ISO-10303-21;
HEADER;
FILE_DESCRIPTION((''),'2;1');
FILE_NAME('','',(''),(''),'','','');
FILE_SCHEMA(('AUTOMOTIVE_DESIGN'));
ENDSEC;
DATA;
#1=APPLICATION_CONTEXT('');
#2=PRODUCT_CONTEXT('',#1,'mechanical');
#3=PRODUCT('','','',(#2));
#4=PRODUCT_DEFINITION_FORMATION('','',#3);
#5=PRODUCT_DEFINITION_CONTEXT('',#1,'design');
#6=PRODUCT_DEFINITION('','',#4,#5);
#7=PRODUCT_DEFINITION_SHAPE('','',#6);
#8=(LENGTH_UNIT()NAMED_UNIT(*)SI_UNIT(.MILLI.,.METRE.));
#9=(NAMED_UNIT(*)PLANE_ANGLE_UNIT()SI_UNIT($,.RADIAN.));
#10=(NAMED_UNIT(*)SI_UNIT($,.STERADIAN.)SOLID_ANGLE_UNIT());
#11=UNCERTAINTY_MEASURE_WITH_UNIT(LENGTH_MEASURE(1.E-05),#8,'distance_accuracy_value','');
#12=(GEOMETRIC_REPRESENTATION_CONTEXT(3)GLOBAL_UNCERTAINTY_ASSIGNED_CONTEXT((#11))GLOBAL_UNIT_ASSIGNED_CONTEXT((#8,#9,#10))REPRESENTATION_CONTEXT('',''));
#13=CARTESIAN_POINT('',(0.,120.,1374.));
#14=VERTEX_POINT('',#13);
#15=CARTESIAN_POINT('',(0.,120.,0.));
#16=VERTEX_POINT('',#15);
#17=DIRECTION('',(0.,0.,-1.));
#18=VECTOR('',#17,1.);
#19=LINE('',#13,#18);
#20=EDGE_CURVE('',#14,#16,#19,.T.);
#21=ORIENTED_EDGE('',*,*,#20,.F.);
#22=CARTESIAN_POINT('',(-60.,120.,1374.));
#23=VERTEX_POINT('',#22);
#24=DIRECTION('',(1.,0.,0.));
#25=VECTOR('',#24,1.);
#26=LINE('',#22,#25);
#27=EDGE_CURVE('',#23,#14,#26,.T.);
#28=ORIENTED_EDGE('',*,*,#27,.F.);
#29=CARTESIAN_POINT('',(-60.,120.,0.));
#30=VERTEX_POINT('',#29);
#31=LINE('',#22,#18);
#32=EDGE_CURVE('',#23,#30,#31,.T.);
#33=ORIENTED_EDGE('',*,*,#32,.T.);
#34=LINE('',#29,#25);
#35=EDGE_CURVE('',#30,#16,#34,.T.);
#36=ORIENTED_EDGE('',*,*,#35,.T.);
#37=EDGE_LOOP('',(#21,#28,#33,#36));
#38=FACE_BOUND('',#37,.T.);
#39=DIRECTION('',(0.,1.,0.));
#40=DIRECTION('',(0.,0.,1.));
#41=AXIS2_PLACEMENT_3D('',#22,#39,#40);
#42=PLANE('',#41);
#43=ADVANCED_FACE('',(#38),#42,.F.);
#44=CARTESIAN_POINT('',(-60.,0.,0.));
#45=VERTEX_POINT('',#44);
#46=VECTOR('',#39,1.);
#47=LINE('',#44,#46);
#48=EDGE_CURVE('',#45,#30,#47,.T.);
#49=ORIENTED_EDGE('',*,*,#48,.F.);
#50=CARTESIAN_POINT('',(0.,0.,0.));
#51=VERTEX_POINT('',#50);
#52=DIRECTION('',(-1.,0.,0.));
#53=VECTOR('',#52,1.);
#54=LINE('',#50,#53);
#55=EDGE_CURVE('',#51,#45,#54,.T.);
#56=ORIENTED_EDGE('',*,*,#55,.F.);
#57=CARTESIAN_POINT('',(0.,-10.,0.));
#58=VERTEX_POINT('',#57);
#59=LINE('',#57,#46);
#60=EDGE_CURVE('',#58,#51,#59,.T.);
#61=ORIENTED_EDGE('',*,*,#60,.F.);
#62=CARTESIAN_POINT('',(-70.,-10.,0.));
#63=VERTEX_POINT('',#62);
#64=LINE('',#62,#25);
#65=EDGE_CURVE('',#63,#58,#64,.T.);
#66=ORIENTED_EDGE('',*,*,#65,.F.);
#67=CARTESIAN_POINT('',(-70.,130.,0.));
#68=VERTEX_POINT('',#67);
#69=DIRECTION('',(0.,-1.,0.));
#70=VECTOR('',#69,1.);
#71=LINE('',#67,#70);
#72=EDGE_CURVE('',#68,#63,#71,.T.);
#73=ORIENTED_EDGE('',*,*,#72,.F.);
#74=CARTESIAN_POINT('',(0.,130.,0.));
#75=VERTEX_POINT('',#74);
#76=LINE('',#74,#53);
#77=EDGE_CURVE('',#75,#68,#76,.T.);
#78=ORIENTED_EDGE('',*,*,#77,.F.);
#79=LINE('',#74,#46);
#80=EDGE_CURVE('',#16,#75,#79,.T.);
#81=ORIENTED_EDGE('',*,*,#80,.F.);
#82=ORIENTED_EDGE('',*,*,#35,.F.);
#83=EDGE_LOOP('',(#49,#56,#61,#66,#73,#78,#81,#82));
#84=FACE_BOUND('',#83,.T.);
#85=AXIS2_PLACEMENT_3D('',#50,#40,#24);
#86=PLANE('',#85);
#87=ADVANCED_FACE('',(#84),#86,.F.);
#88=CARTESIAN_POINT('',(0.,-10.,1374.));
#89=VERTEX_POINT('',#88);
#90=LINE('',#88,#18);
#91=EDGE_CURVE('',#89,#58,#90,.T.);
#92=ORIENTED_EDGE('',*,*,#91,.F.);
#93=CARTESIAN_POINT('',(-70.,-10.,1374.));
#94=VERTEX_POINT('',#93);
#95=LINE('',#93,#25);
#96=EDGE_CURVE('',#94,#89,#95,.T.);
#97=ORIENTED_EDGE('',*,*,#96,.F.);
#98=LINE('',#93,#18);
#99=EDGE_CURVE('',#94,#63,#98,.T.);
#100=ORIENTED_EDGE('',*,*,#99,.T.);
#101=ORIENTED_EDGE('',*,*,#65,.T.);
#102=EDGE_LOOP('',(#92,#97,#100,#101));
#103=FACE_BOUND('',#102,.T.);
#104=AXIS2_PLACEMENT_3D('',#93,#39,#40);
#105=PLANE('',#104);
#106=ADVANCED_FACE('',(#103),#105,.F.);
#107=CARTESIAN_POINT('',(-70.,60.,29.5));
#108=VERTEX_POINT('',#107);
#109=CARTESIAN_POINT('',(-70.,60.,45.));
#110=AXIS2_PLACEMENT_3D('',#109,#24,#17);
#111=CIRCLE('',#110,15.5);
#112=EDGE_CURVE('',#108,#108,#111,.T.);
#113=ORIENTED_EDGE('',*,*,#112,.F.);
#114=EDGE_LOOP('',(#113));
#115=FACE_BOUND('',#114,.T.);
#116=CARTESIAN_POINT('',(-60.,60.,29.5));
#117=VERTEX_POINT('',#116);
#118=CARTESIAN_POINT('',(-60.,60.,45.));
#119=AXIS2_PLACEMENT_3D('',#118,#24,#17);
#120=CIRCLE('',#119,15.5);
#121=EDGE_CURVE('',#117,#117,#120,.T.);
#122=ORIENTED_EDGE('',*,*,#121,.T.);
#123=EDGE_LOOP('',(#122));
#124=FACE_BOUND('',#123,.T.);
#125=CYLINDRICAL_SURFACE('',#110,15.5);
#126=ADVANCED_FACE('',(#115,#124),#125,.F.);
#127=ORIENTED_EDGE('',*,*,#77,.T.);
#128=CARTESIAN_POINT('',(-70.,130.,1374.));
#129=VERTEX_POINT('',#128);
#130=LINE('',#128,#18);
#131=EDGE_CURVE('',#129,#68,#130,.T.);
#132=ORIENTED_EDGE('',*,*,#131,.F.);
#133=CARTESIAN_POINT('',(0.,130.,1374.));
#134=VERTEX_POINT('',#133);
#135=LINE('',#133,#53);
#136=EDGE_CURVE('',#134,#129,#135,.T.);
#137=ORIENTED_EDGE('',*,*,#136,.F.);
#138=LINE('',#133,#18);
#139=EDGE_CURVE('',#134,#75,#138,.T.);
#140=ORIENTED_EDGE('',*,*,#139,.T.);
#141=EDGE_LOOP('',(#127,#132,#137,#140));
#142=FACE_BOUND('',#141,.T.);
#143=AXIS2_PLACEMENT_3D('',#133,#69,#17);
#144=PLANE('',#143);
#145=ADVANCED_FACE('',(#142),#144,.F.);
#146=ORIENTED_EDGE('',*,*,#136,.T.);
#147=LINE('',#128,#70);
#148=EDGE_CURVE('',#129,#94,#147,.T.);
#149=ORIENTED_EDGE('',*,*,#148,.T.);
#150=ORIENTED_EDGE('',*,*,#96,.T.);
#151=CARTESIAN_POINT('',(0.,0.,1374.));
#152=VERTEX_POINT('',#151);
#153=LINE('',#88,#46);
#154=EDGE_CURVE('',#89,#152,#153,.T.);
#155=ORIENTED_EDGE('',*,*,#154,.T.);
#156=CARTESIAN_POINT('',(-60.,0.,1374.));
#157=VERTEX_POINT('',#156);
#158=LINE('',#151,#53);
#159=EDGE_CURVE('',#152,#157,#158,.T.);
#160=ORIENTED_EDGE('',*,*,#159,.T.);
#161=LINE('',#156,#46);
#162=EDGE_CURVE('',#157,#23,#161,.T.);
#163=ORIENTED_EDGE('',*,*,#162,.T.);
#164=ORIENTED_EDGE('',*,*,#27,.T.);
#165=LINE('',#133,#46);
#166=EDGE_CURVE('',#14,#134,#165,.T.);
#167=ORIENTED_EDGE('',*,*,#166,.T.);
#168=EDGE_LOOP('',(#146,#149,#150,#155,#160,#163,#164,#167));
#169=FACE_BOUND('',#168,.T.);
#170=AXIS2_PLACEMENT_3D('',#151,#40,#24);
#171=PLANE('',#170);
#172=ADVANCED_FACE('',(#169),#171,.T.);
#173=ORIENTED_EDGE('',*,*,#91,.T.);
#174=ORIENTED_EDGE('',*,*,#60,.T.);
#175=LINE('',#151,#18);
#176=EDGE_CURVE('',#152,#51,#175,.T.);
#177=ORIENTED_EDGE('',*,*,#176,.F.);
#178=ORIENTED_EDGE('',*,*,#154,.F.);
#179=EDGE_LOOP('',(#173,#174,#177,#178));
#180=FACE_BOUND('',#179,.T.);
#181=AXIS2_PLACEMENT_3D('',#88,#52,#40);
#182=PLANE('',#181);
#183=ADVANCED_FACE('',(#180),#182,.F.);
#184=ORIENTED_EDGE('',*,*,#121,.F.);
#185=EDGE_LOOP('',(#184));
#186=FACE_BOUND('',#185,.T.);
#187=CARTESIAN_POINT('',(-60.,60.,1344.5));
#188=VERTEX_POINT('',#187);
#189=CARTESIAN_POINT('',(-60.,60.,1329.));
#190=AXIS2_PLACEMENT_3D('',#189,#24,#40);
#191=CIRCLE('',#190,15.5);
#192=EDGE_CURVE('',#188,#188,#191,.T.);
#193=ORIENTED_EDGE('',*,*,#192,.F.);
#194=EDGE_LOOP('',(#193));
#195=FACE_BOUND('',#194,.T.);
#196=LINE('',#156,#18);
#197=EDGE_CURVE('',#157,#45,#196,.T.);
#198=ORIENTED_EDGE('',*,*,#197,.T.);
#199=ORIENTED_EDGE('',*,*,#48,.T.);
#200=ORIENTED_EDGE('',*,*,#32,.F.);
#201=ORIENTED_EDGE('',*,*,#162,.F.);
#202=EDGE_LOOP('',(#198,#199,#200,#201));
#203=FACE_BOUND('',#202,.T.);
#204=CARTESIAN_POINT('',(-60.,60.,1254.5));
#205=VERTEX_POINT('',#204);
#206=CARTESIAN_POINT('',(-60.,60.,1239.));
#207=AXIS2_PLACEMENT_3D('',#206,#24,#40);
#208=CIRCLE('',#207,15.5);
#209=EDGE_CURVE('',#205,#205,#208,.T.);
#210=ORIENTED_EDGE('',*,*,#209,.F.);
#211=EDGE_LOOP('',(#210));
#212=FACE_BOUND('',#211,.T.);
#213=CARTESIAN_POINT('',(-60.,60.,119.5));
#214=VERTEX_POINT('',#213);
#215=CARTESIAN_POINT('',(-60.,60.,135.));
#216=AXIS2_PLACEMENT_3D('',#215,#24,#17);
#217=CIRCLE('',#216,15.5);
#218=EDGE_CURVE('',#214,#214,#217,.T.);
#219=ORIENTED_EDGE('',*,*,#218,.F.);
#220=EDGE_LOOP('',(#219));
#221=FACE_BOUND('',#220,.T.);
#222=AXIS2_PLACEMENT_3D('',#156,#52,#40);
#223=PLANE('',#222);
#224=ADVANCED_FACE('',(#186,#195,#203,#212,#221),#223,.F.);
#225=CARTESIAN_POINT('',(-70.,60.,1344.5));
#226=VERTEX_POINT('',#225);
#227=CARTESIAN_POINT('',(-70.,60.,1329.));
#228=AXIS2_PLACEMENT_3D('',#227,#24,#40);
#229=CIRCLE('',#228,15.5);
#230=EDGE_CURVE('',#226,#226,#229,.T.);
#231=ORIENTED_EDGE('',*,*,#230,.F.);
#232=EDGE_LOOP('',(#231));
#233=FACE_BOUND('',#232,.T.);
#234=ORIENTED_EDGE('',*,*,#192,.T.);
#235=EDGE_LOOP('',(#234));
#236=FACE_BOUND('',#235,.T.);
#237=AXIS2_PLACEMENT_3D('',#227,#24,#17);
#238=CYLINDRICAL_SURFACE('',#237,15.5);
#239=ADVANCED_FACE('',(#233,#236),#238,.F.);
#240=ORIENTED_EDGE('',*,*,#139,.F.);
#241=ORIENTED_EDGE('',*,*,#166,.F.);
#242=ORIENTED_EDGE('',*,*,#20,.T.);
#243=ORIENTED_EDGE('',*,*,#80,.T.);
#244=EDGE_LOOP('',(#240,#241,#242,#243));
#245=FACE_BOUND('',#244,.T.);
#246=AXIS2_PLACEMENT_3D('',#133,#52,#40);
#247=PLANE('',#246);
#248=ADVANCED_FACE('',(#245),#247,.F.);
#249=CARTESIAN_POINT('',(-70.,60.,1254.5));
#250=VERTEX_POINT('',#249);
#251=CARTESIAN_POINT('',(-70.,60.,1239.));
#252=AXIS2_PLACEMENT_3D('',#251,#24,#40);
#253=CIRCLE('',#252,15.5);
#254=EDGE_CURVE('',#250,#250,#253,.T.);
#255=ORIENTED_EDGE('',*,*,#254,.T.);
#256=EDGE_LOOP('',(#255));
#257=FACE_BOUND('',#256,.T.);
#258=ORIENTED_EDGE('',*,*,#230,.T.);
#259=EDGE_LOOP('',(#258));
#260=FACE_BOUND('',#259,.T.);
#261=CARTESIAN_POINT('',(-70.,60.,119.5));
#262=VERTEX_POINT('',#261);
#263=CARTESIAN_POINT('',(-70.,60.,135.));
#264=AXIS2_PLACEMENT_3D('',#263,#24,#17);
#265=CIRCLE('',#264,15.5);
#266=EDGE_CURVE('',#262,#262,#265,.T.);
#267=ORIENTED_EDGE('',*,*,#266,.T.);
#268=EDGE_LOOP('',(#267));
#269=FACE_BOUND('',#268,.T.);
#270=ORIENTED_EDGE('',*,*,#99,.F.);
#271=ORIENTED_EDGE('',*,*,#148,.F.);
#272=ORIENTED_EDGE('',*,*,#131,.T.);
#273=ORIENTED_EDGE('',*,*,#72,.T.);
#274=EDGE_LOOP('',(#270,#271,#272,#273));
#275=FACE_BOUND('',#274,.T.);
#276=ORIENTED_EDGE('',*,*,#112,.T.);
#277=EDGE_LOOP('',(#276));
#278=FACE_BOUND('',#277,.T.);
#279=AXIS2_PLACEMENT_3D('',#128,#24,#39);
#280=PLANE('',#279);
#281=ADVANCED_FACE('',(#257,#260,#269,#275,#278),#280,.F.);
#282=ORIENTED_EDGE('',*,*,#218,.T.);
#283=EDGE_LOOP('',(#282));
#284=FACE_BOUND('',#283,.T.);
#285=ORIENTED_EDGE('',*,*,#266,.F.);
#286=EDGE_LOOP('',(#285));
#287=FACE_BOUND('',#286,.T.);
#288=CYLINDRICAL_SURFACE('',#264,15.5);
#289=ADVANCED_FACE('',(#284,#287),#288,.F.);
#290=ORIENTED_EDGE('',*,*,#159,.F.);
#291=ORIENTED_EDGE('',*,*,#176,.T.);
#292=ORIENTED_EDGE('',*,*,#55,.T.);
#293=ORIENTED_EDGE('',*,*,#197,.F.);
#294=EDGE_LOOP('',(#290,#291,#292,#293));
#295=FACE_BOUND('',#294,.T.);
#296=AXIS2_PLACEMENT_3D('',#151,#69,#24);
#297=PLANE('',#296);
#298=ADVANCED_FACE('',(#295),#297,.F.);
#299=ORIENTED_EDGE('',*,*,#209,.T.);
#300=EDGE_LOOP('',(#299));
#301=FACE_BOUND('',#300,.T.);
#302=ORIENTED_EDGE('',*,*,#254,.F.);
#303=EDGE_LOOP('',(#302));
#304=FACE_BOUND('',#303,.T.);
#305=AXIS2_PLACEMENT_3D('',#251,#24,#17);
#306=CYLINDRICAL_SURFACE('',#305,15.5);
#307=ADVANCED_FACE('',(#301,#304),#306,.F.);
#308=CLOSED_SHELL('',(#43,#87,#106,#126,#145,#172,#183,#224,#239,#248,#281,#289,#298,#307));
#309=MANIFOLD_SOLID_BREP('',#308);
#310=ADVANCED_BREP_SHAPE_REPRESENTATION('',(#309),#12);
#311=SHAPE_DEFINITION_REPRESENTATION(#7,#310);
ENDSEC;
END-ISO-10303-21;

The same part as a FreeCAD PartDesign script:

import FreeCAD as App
import Part
import Sketcher
from FreeCAD import Vector
Q = App.Units.Quantity

doc = App.newDocument("Part")
body = doc.addObject("PartDesign::Body", "Body")

sketch1 = body.newObject("Sketcher::SketchObject", "Sketch")
sketch1.AttachmentSupport = (doc.getObject("XY_Plane"), [""])
sketch1.MapMode = "FlatFace"
sketch1.addGeometry([
    Part.LineSegment(Vector(0, 0, 0), Vector(-60, 0, 0)),
    Part.LineSegment(Vector(-60, 0, 0), Vector(-60, 120, 0)),
    Part.LineSegment(Vector(-60, 120, 0), Vector(0, 120, 0)),
    Part.LineSegment(Vector(0, 120, 0), Vector(0, 130, 0)),
    Part.LineSegment(Vector(0, 130, 0), Vector(-70, 130, 0)),
    Part.LineSegment(Vector(-70, 130, 0), Vector(-70, -10, 0)),
    Part.LineSegment(Vector(-70, -10, 0), Vector(0, -10, 0)),
    Part.LineSegment(Vector(0, -10, 0), Vector(0, 0, 0)),
], False)
sketch1.addConstraint([
    Sketcher.Constraint("Coincident", 0, 2, 1, 1),
    Sketcher.Constraint("Coincident", 1, 2, 2, 1),
    Sketcher.Constraint("Coincident", 2, 2, 3, 1),
    Sketcher.Constraint("Coincident", 3, 2, 4, 1),
    Sketcher.Constraint("Coincident", 4, 2, 5, 1),
    Sketcher.Constraint("Coincident", 5, 2, 6, 1),
    Sketcher.Constraint("Coincident", 6, 2, 7, 1),
    Sketcher.Constraint("Coincident", 7, 2, 0, 1),
    Sketcher.Constraint("Horizontal", 0),
    Sketcher.Constraint("Vertical", 1),
    Sketcher.Constraint("Horizontal", 2),
    Sketcher.Constraint("Vertical", 3),
    Sketcher.Constraint("Horizontal", 4),
    Sketcher.Constraint("Vertical", 5),
    Sketcher.Constraint("Horizontal", 6),
    Sketcher.Constraint("Vertical", 7),
    Sketcher.Constraint("Coincident", 7, 2, -1, 1),
    Sketcher.Constraint("PointOnObject", 2, 2, -2),
    Sketcher.Constraint("Equal", 3, 7),
    Sketcher.Constraint("DistanceX", 0, 2, 0, 1, Q("60 mm")),
    Sketcher.Constraint("DistanceX", 4, 2, 4, 1, Q("70 mm")),
    Sketcher.Constraint("DistanceY", 1, 1, 1, 2, Q("120 mm")),
    Sketcher.Constraint("DistanceY", 3, 1, 3, 2, Q("10 mm")),
])
pad1 = body.newObject("PartDesign::Pad", "Pad")
pad1.Profile = sketch1
pad1.Length = 1374

sketch2 = body.newObject("Sketcher::SketchObject", "Sketch001")
sketch2.AttachmentSupport = (doc.getObject("YZ_Plane"), [""])
sketch2.MapMode = "FlatFace"
sketch2.AttachmentOffset = App.Placement(Vector(0, 0, -60), App.Rotation())
sketch2.addGeometry([
    Part.Circle(Vector(60, 45, 0), Vector(0, 0, 1), 16),
    Part.Circle(Vector(60, 135, 0), Vector(0, 0, 1), 16),
    Part.Circle(Vector(60, 1239, 0), Vector(0, 0, 1), 16),
    Part.Circle(Vector(60, 1329, 0), Vector(0, 0, 1), 16),
], False)
sketch2.addConstraint([
    Sketcher.Constraint("Equal", 0, 1),
    Sketcher.Constraint("Equal", 1, 2),
    Sketcher.Constraint("Equal", 2, 3),
    Sketcher.Constraint("Vertical", 0, 3, 1, 3),
    Sketcher.Constraint("Vertical", 1, 3, 2, 3),
    Sketcher.Constraint("Vertical", 2, 3, 3, 3),
    Sketcher.Constraint("Diameter", 0, Q("31 mm")),
    Sketcher.Constraint("DistanceX", -1, 1, 0, 3, Q("60 mm")),
    Sketcher.Constraint("DistanceY", -1, 1, 0, 3, Q("45 mm")),
    Sketcher.Constraint("DistanceY", -1, 1, 1, 3, Q("135 mm")),
    Sketcher.Constraint("DistanceY", -1, 1, 2, 3, Q("1239 mm")),
    Sketcher.Constraint("DistanceY", -1, 1, 3, 3, Q("1329 mm")),
])
pocket1 = body.newObject("PartDesign::Pocket", "Pocket")
pocket1.Profile = sketch2
pocket1.Type = "ThroughAll"

doc.recompute()
